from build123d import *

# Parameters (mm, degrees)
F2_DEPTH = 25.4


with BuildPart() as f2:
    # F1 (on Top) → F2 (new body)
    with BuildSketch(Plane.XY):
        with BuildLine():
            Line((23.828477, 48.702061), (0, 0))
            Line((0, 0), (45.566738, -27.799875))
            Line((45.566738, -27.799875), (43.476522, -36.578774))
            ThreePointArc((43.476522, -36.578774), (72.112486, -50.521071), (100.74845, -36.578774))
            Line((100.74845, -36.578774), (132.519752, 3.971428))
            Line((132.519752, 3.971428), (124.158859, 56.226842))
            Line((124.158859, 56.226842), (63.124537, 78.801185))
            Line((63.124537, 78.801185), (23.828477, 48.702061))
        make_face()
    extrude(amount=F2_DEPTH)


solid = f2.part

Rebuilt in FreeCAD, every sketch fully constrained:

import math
import FreeCAD as App
import Part
import Sketcher
from FreeCAD import Vector
Q = App.Units.Quantity

doc = App.newDocument("Part")
body = doc.addObject("PartDesign::Body", "Body")

# Sketch on XY plane
sketch1 = doc.addObject("Sketcher::SketchObject", "Sketch")
body.addObject(sketch1)
sketch1.AttachmentSupport = (doc.XY_Plane, [""])
sketch1.MapMode = "FlatFace"
sketch1.addGeometry(Part.LineSegment(Vector(23.828477, 48.702061, 0), Vector(0, 0, 0)), False)
sketch1.addGeometry(Part.LineSegment(Vector(0, 0, 0), Vector(45.566738, -27.799875, 0)), False)
sketch1.addGeometry(Part.LineSegment(Vector(45.566738, -27.799875, 0), Vector(43.476522, -36.578774, 0)), False)
sketch1.addGeometry(Part.ArcOfCircle(Part.Circle(Vector(72.112486, -14.142342, 0), Vector(0, 0, 1), 36.378729), math.radians(-141.92111), math.radians(-38.07889)), False)
sketch1.addGeometry(Part.LineSegment(Vector(100.74845, -36.578774, 0), Vector(132.519752, 3.971428, 0)), False)
sketch1.addGeometry(Part.LineSegment(Vector(132.519752, 3.971428, 0), Vector(124.158859, 56.226842, 0)), False)
sketch1.addGeometry(Part.LineSegment(Vector(124.158859, 56.226842, 0), Vector(63.124537, 78.801185, 0)), False)
sketch1.addGeometry(Part.LineSegment(Vector(63.124537, 78.801185, 0), Vector(23.828477, 48.702061, 0)), False)
sketch1.addConstraint(Sketcher.Constraint("Coincident", 0, 2, 1, 1))
sketch1.addConstraint(Sketcher.Constraint("Coincident", 1, 2, 2, 1))
sketch1.addConstraint(Sketcher.Constraint("Coincident", 2, 2, 3, 1))
sketch1.addConstraint(Sketcher.Constraint("Tangent", 3, 2, 4, 1))
sketch1.addConstraint(Sketcher.Constraint("Coincident", 4, 2, 5, 1))
sketch1.addConstraint(Sketcher.Constraint("Coincident", 5, 2, 6, 1))
sketch1.addConstraint(Sketcher.Constraint("Coincident", 6, 2, 7, 1))
sketch1.addConstraint(Sketcher.Constraint("Coincident", 7, 2, 0, 1))
sketch1.addConstraint(Sketcher.Constraint("Coincident", 0, 2, -1, 1))
sketch1.addConstraint(Sketcher.Constraint("Horizontal", 2, 2, 3, 2))
sketch1.addConstraint(Sketcher.Constraint("Radius", 3, 36.378729))
sketch1.addConstraint(Sketcher.Constraint("DistanceX", 2, 2, 3, 3, Q("1.1274002 in")))
sketch1.addConstraint(Sketcher.Constraint("DistanceY", 2, 2, 1, 2, 8.778899))
sketch1.addConstraint(Sketcher.Constraint("DistanceY", 3, 2, 4, 2, 40.550202))
sketch1.addConstraint(Sketcher.Constraint("DistanceX", 1, 2, 6, 2, 17.557799))
sketch1.addConstraint(Sketcher.Constraint("Distance", 0, 54.218881))
sketch1.addConstraint(Sketcher.Constraint("Distance", 1, 53.37753))
sketch1.addConstraint(Sketcher.Constraint("Distance", 5, 52.920061))
sketch1.addConstraint(Sketcher.Constraint("Distance", 6, 65.07526))
sketch1.addConstraint(Sketcher.Constraint("DistanceX", -1, 1, 3, 2, 100.74845))
sketch1.addConstraint(Sketcher.Constraint("DistanceY", -1, 1, 4, 2, 3.971428))
sketch1.addConstraint(Sketcher.Constraint("DistanceX", -1, 1, 5, 2, 124.158859))
sketch1.addConstraint(Sketcher.Constraint("DistanceY", -1, 1, 7, 2, 48.702061))
pad1 = doc.addObject("PartDesign::Pad", "Pad")
body.addObject(pad1)
pad1.Profile = sketch1
pad1.Length = Q("1 in")

doc.recompute()
